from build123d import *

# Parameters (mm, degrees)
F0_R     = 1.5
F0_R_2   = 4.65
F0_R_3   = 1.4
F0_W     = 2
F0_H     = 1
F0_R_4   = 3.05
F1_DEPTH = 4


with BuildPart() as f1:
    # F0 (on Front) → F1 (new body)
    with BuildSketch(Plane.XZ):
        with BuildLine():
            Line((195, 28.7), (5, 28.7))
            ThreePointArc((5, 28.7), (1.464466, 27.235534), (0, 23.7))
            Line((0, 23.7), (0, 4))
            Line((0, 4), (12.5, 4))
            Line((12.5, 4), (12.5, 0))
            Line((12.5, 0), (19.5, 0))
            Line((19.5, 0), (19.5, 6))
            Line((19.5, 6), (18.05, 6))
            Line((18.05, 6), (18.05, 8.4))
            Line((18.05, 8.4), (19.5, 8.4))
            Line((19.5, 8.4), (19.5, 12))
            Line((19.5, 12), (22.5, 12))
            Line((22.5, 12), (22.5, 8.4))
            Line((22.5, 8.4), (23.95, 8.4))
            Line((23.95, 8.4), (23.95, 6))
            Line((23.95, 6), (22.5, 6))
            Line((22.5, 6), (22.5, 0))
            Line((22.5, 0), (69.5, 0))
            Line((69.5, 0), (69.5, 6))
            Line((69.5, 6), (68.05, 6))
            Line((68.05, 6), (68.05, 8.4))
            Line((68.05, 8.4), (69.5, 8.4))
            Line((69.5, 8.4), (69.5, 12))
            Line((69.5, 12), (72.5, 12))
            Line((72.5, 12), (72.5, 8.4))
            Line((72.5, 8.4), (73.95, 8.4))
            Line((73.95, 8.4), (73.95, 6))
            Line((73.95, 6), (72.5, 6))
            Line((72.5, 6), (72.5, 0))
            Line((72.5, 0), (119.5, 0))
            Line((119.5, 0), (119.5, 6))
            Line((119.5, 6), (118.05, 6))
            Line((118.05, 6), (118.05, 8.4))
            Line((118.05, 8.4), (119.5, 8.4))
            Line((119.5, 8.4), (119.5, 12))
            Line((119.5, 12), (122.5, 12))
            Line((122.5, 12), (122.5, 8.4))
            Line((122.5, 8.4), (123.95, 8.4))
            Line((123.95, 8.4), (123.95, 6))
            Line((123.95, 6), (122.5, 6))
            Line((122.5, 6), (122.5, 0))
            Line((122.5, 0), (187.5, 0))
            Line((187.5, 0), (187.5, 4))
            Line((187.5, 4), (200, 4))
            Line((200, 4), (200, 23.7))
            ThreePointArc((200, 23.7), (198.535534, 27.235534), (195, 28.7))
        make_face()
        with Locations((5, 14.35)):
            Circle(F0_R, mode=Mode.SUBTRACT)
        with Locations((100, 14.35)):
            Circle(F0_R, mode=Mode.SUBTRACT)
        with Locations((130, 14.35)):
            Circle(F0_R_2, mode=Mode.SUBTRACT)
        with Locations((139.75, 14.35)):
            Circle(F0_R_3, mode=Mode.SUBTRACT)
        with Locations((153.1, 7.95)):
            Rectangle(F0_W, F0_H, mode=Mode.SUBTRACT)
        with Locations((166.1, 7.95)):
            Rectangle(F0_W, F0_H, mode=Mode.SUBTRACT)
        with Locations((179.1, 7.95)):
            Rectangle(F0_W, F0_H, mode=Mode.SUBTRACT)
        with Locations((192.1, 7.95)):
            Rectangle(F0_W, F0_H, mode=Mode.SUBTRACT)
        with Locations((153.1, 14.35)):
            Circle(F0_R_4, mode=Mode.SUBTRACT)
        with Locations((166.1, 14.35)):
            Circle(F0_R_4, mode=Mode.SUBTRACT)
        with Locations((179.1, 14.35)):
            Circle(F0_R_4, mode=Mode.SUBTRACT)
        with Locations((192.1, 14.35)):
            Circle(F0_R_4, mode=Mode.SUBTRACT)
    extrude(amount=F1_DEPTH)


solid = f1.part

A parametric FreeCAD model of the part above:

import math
import FreeCAD as App
import Part
import Sketcher
from FreeCAD import Vector
Q = App.Units.Quantity

doc = App.newDocument("Part")
body = doc.addObject("PartDesign::Body", "Body")

# Sketch on XZ plane
sketch1 = doc.addObject("Sketcher::SketchObject", "Sketch")
body.addObject(sketch1)
sketch1.AttachmentSupport = (doc.XZ_Plane, [""])
sketch1.MapMode = "FlatFace"
sketch1.addGeometry([
    Part.LineSegment(Vector(195, 28.7, 0), Vector(5, 28.7, 0)),  # 0
    Part.ArcOfCircle(Part.Circle(Vector(5, 23.7, 0), Vector(0, 0, 1), 5), math.radians(89.999996), math.radians(180.000004)),  # 1
    Part.LineSegment(Vector(0, 23.7, 0), Vector(0, 4, 0)),  # 2
    Part.LineSegment(Vector(0, 4, 0), Vector(12.5, 4, 0)),  # 3
    Part.LineSegment(Vector(12.5, 4, 0), Vector(12.5, 0, 0)),  # 4
    Part.LineSegment(Vector(12.5, 0, 0), Vector(19.5, 0, 0)),  # 5
    Part.LineSegment(Vector(19.5, 0, 0), Vector(19.5, 6, 0)),  # 6
    Part.LineSegment(Vector(19.5, 6, 0), Vector(18.05, 6, 0)),  # 7
    Part.LineSegment(Vector(18.05, 6, 0), Vector(18.05, 8.4, 0)),  # 8
    Part.LineSegment(Vector(18.05, 8.4, 0), Vector(19.5, 8.4, 0)),  # 9
    Part.LineSegment(Vector(19.5, 8.4, 0), Vector(19.5, 12, 0)),  # 10
    Part.LineSegment(Vector(19.5, 12, 0), Vector(22.5, 12, 0)),  # 11
    Part.LineSegment(Vector(22.5, 12, 0), Vector(22.5, 8.4, 0)),  # 12
    Part.LineSegment(Vector(22.5, 8.4, 0), Vector(23.95, 8.4, 0)),  # 13
    Part.LineSegment(Vector(23.95, 8.4, 0), Vector(23.95, 6, 0)),  # 14
    Part.LineSegment(Vector(23.95, 6, 0), Vector(22.5, 6, 0)),  # 15
    Part.LineSegment(Vector(22.5, 6, 0), Vector(22.5, 0, 0)),  # 16
    Part.LineSegment(Vector(22.5, 0, 0), Vector(69.5, 0, 0)),  # 17
    Part.LineSegment(Vector(69.5, 0, 0), Vector(69.5, 6, 0)),  # 18
    Part.LineSegment(Vector(69.5, 6, 0), Vector(68.05, 6, 0)),  # 19
    Part.LineSegment(Vector(68.05, 6, 0), Vector(68.05, 8.4, 0)),  # 20
    Part.LineSegment(Vector(68.05, 8.4, 0), Vector(69.5, 8.4, 0)),  # 21
    Part.LineSegment(Vector(69.5, 8.4, 0), Vector(69.5, 12, 0)),  # 22
    Part.LineSegment(Vector(69.5, 12, 0), Vector(72.5, 12, 0)),  # 23
    Part.LineSegment(Vector(72.5, 12, 0), Vector(72.5, 8.4, 0)),  # 24
    Part.LineSegment(Vector(72.5, 8.4, 0), Vector(73.95, 8.4, 0)),  # 25
    Part.LineSegment(Vector(73.95, 8.4, 0), Vector(73.95, 6, 0)),  # 26
    Part.LineSegment(Vector(73.95, 6, 0), Vector(72.5, 6, 0)),  # 27
    Part.LineSegment(Vector(72.5, 6, 0), Vector(72.5, 0, 0)),  # 28
    Part.LineSegment(Vector(72.5, 0, 0), Vector(119.5, 0, 0)),  # 29
    Part.LineSegment(Vector(119.5, 0, 0), Vector(119.5, 6, 0)),  # 30
    Part.LineSegment(Vector(119.5, 6, 0), Vector(118.05, 6, 0)),  # 31
    Part.LineSegment(Vector(118.05, 6, 0), Vector(118.05, 8.4, 0)),  # 32
    Part.LineSegment(Vector(118.05, 8.4, 0), Vector(119.5, 8.4, 0)),  # 33
    Part.LineSegment(Vector(119.5, 8.4, 0), Vector(119.5, 12, 0)),  # 34
    Part.LineSegment(Vector(119.5, 12, 0), Vector(122.5, 12, 0)),  # 35
    Part.LineSegment(Vector(122.5, 12, 0), Vector(122.5, 8.4, 0)),  # 36
    Part.LineSegment(Vector(122.5, 8.4, 0), Vector(123.95, 8.4, 0)),  # 37
    Part.LineSegment(Vector(123.95, 8.4, 0), Vector(123.95, 6, 0)),  # 38
    Part.LineSegment(Vector(123.95, 6, 0), Vector(122.5, 6, 0)),  # 39
    Part.LineSegment(Vector(122.5, 6, 0), Vector(122.5, 0, 0)),  # 40
    Part.LineSegment(Vector(122.5, 0, 0), Vector(187.5, 0, 0)),  # 41
    Part.LineSegment(Vector(187.5, 0, 0), Vector(187.5, 4, 0)),  # 42
    Part.LineSegment(Vector(187.5, 4, 0), Vector(200, 4, 0)),  # 43
    Part.LineSegment(Vector(200, 4, 0), Vector(200, 23.7, 0)),  # 44
    Part.ArcOfCircle(Part.Circle(Vector(195, 23.7, 0), Vector(0, 0, 1), 5), math.radians(-0.000004), math.radians(90.000004)),  # 45
    Part.LineSegment(Vector(154.1, 7.45, 0), Vector(152.1, 7.45, 0)),  # 46
    Part.LineSegment(Vector(152.1, 7.45, 0), Vector(152.1, 8.45, 0)),  # 47
    Part.LineSegment(Vector(152.1, 8.45, 0), Vector(154.1, 8.45, 0)),  # 48
    Part.LineSegment(Vector(154.1, 8.45, 0), Vector(154.1, 7.45, 0)),  # 49
    Part.LineSegment(Vector(167.1, 7.45, 0), Vector(165.1, 7.45, 0)),  # 50
    Part.LineSegment(Vector(165.1, 7.45, 0), Vector(165.1, 8.45, 0)),  # 51
    Part.LineSegment(Vector(165.1, 8.45, 0), Vector(167.1, 8.45, 0)),  # 52
    Part.LineSegment(Vector(167.1, 8.45, 0), Vector(167.1, 7.45, 0)),  # 53
    Part.LineSegment(Vector(180.1, 7.45, 0), Vector(178.1, 7.45, 0)),  # 54
    Part.LineSegment(Vector(178.1, 7.45, 0), Vector(178.1, 8.45, 0)),  # 55
    Part.LineSegment(Vector(178.1, 8.45, 0), Vector(180.1, 8.45, 0)),  # 56
    Part.LineSegment(Vector(180.1, 8.45, 0), Vector(180.1, 7.45, 0)),  # 57
    Part.LineSegment(Vector(193.1, 7.45, 0), Vector(191.1, 7.45, 0)),  # 58
    Part.LineSegment(Vector(191.1, 7.45, 0), Vector(191.1, 8.45, 0)),  # 59
    Part.LineSegment(Vector(191.1, 8.45, 0), Vector(193.1, 8.45, 0)),  # 60
    Part.LineSegment(Vector(193.1, 8.45, 0), Vector(193.1, 7.45, 0)),  # 61
    Part.Circle(Vector(5, 14.35, 0), Vector(0, 0, 1), 1.5),  # 62
    Part.Circle(Vector(100, 14.35, 0), Vector(0, 0, 1), 1.5),  # 63
    Part.Circle(Vector(130, 14.35, 0), Vector(0, 0, 1), 4.65),  # 64
    Part.Circle(Vector(139.75, 14.35, 0), Vector(0, 0, 1), 1.4),  # 65
    Part.Circle(Vector(153.1, 14.35, 0), Vector(0, 0, 1), 3.05),  # 66
    Part.Circle(Vector(166.1, 14.35, 0), Vector(0, 0, 1), 3.05),  # 67
    Part.Circle(Vector(179.1, 14.35, 0), Vector(0, 0, 1), 3.05),  # 68
    Part.Circle(Vector(192.1, 14.35, 0), Vector(0, 0, 1), 3.05),  # 69
], False)
sketch1.addConstraint([
    Sketcher.Constraint("Tangent", 0, 2, 1, 1),
    Sketcher.Constraint("Tangent", 1, 2, 2, 1),
    Sketcher.Constraint("Coincident", 2, 2, 3, 1),
    Sketcher.Constraint("Coincident", 3, 2, 4, 1),
    Sketcher.Constraint("Coincident", 4, 2, 5, 1),
    Sketcher.Constraint("Coincident", 5, 2, 6, 1),
    Sketcher.Constraint("Coincident", 6, 2, 7, 1),
    Sketcher.Constraint("Coincident", 7, 2, 8, 1),
    Sketcher.Constraint("Coincident", 8, 2, 9, 1),
    Sketcher.Constraint("Coincident", 9, 2, 10, 1),
    Sketcher.Constraint("Coincident", 10, 2, 11, 1),
    Sketcher.Constraint("Coincident", 11, 2, 12, 1),
    Sketcher.Constraint("Coincident", 12, 2, 13, 1),
    Sketcher.Constraint("Coincident", 13, 2, 14, 1),
    Sketcher.Constraint("Coincident", 14, 2, 15, 1),
    Sketcher.Constraint("Coincident", 15, 2, 16, 1),
    Sketcher.Constraint("Coincident", 16, 2, 17, 1),
    Sketcher.Constraint("Coincident", 17, 2, 18, 1),
    Sketcher.Constraint("Coincident", 18, 2, 19, 1),
    Sketcher.Constraint("Coincident", 19, 2, 20, 1),
    Sketcher.Constraint("Coincident", 20, 2, 21, 1),
    Sketcher.Constraint("Coincident", 21, 2, 22, 1),
    Sketcher.Constraint("Coincident", 22, 2, 23, 1),
    Sketcher.Constraint("Coincident", 23, 2, 24, 1),
    Sketcher.Constraint("Coincident", 24, 2, 25, 1),
    Sketcher.Constraint("Coincident", 25, 2, 26, 1),
    Sketcher.Constraint("Coincident", 26, 2, 27, 1),
    Sketcher.Constraint("Coincident", 27, 2, 28, 1),
    Sketcher.Constraint("Coincident", 28, 2, 29, 1),
    Sketcher.Constraint("Coincident", 29, 2, 30, 1),
    Sketcher.Constraint("Coincident", 30, 2, 31, 1),
    Sketcher.Constraint("Coincident", 31, 2, 32, 1),
    Sketcher.Constraint("Coincident", 32, 2, 33, 1),
    Sketcher.Constraint("Coincident", 33, 2, 34, 1),
    Sketcher.Constraint("Coincident", 34, 2, 35, 1),
    Sketcher.Constraint("Coincident", 35, 2, 36, 1),
    Sketcher.Constraint("Coincident", 36, 2, 37, 1),
    Sketcher.Constraint("Coincident", 37, 2, 38, 1),
    Sketcher.Constraint("Coincident", 38, 2, 39, 1),
    Sketcher.Constraint("Coincident", 39, 2, 40, 1),
    Sketcher.Constraint("Coincident", 40, 2, 41, 1),
    Sketcher.Constraint("Coincident", 41, 2, 42, 1),
    Sketcher.Constraint("Coincident", 42, 2, 43, 1),
    Sketcher.Constraint("Coincident", 43, 2, 44, 1),
    Sketcher.Constraint("Tangent", 44, 2, 45, 1),
    Sketcher.Constraint("Tangent", 45, 2, 0, 1),
    Sketcher.Constraint("Coincident", 46, 2, 47, 1),
    Sketcher.Constraint("Coincident", 47, 2, 48, 1),
    Sketcher.Constraint("Coincident", 48, 2, 49, 1),
    Sketcher.Constraint("Coincident", 49, 2, 46, 1),
    Sketcher.Constraint("Coincident", 50, 2, 51, 1),
    Sketcher.Constraint("Coincident", 51, 2, 52, 1),
    Sketcher.Constraint("Coincident", 52, 2, 53, 1),
    Sketcher.Constraint("Coincident", 53, 2, 50, 1),
    Sketcher.Constraint("Coincident", 54, 2, 55, 1),
    Sketcher.Constraint("Coincident", 55, 2, 56, 1),
    Sketcher.Constraint("Coincident", 56, 2, 57, 1),
    Sketcher.Constraint("Coincident", 57, 2, 54, 1),
    Sketcher.Constraint("Coincident", 58, 2, 59, 1),
    Sketcher.Constraint("Coincident", 59, 2, 60, 1),
    Sketcher.Constraint("Coincident", 60, 2, 61, 1),
    Sketcher.Constraint("Coincident", 61, 2, 58, 1),
    Sketcher.Constraint("Horizontal", 0),
    Sketcher.Constraint("Vertical", 2),
    Sketcher.Constraint("Horizontal", 3),
    Sketcher.Constraint("Vertical", 4),
    Sketcher.Constraint("Horizontal", 5),
    Sketcher.Constraint("Vertical", 6),
    Sketcher.Constraint("Horizontal", 7),
    Sketcher.Constraint("Vertical", 8),
    Sketcher.Constraint("Horizontal", 9),
    Sketcher.Constraint("Vertical", 10),
    Sketcher.Constraint("Horizontal", 11),
    Sketcher.Constraint("Vertical", 12),
    Sketcher.Constraint("Horizontal", 13),
    Sketcher.Constraint("Vertical", 14),
    Sketcher.Constraint("Horizontal", 15),
    Sketcher.Constraint("Vertical", 16),
    Sketcher.Constraint("Horizontal", 17),
    Sketcher.Constraint("Vertical", 18),
    Sketcher.Constraint("Horizontal", 19),
    Sketcher.Constraint("Vertical", 20),
    Sketcher.Constraint("Horizontal", 21),
    Sketcher.Constraint("Vertical", 22),
    Sketcher.Constraint("Horizontal", 23),
    Sketcher.Constraint("Vertical", 24),
    Sketcher.Constraint("Horizontal", 25),
    Sketcher.Constraint("Vertical", 26),
    Sketcher.Constraint("Horizontal", 27),
    Sketcher.Constraint("Vertical", 28),
    Sketcher.Constraint("Horizontal", 29),
    Sketcher.Constraint("Vertical", 30),
    Sketcher.Constraint("Horizontal", 31),
    Sketcher.Constraint("Vertical", 32),
    Sketcher.Constraint("Horizontal", 33),
    Sketcher.Constraint("Vertical", 34),
    Sketcher.Constraint("Horizontal", 35),
    Sketcher.Constraint("Vertical", 36),
    Sketcher.Constraint("Horizontal", 37),
    Sketcher.Constraint("Vertical", 38),
    Sketcher.Constraint("Horizontal", 39),
    Sketcher.Constraint("Vertical", 40),
    Sketcher.Constraint("Horizontal", 41),
    Sketcher.Constraint("Vertical", 42),
    Sketcher.Constraint("Horizontal", 43),
    Sketcher.Constraint("Vertical", 44),
    Sketcher.Constraint("Horizontal", 46),
    Sketcher.Constraint("Vertical", 47),
    Sketcher.Constraint("Horizontal", 48),
    Sketcher.Constraint("Vertical", 49),
    Sketcher.Constraint("Horizontal", 50),
    Sketcher.Constraint("Vertical", 51),
    Sketcher.Constraint("Horizontal", 52),
    Sketcher.Constraint("Vertical", 53),
    Sketcher.Constraint("Horizontal", 54),
    Sketcher.Constraint("Vertical", 55),
    Sketcher.Constraint("Horizontal", 56),
    Sketcher.Constraint("Vertical", 57),
    Sketcher.Constraint("Horizontal", 58),
    Sketcher.Constraint("Vertical", 59),
    Sketcher.Constraint("Horizontal", 60),
    Sketcher.Constraint("Vertical", 61),
    Sketcher.Constraint("Equal", 1, 45),
    Sketcher.Constraint("Equal", 62, 63),
    Sketcher.Constraint("Equal", 66, 67),
    Sketcher.Constraint("Equal", 67, 68),
    Sketcher.Constraint("Equal", 68, 69),
    Sketcher.Constraint("PointOnObject", 1, 2, -2),
    Sketcher.Constraint("PointOnObject", 4, 2, -1),
    Sketcher.Constraint("PointOnObject", 16, 2, -1),
    Sketcher.Constraint("PointOnObject", 28, 2, -1),
    Sketcher.Constraint("PointOnObject", 40, 2, -1),
    Sketcher.Constraint("Horizontal", 62, 3, 63, 3),
    Sketcher.Constraint("Horizontal", 63, 3, 64, 3),
    Sketcher.Constraint("Horizontal", 64, 3, 65, 3),
    Sketcher.Constraint("Horizontal", 65, 3, 66, 3),
    Sketcher.Constraint("Horizontal", 66, 3, 67, 3),
    Sketcher.Constraint("Horizontal", 67, 3, 68, 3),
    Sketcher.Constraint("Horizontal", 68, 3, 69, 3),
    Sketcher.Constraint("Horizontal", 9, 2, 12, 2),
    Sketcher.Constraint("Horizontal", 7, 2, 14, 2),
    Sketcher.Constraint("Horizontal", 15, 2, 18, 2),
    Sketcher.Constraint("Horizontal", 13, 2, 20, 2),
    Sketcher.Constraint("Horizontal", 11, 2, 22, 2),
    Sketcher.Constraint("Horizontal", 21, 2, 24, 2),
    Sketcher.Constraint("Horizontal", 19, 2, 26, 2),
    Sketcher.Constraint("Horizontal", 27, 2, 30, 2),
    Sketcher.Constraint("Horizontal", 25, 2, 32, 2),
    Sketcher.Constraint("Horizontal", 23, 2, 34, 2),
    Sketcher.Constraint("Horizontal", 33, 2, 36, 2),
    Sketcher.Constraint("Horizontal", 31, 2, 38, 2),
    Sketcher.Constraint("Horizontal", 3, 2, 42, 2),
    Sketcher.Constraint("Horizontal", 49, 2, 50, 2),
    Sketcher.Constraint("Horizontal", 48, 2, 51, 2),
    Sketcher.Constraint("Horizontal", 53, 2, 54, 2),
    Sketcher.Constraint("Horizontal", 52, 2, 55, 2),
    Sketcher.Constraint("Horizontal", 57, 2, 58, 2),
    Sketcher.Constraint("Horizontal", 56, 2, 59, 2),
    Sketcher.Constraint("Vertical", 1, 3, 62, 3),
    Sketcher.Constraint("Vertical", 6, 2, 9, 2),
    Sketcher.Constraint("Vertical", 12, 2, 15, 2),
    Sketcher.Constraint("Vertical", 18, 2, 21, 2),
    Sketcher.Constraint("Vertical", 24, 2, 27, 2),
    Sketcher.Constraint("Vertical", 30, 2, 33, 2),
    Sketcher.Constraint("Vertical", 36, 2, 39, 2),
    Sketcher.Constraint("Equal", 9, 13),
    Sketcher.Constraint("Equal", 15, 19),
    Sketcher.Constraint("Equal", 11, 23),
    Sketcher.Constraint("Equal", 21, 25),
    Sketcher.Constraint("Equal", 17, 29),
    Sketcher.Constraint("Equal", 27, 31),
    Sketcher.Constraint("Equal", 23, 35),
    Sketcher.Constraint("Equal", 33, 37),
    Sketcher.Constraint("Equal", 3, 43),
    Sketcher.Constraint("Equal", 48, 50),
    Sketcher.Constraint("Equal", 52, 54),
    Sketcher.Constraint("Equal", 56, 58),
    Sketcher.Constraint("Diameter", 62, Q("3 mm")),
    Sketcher.Constraint("Radius", 1, Q("5 mm")),
    Sketcher.Constraint("Diameter", 64, Q("9.3 mm")),
    Sketcher.Constraint("Diameter", 65, Q("2.8 mm")),
    Sketcher.Constraint("Diameter", 66, Q("6.1 mm")),
    Sketcher.Constraint("DistanceX", 0, 2, 0, 1, Q("190 mm")),
    Sketcher.Constraint("DistanceX", 5, 1, 5, 2, Q("7 mm")),
    Sketcher.Constraint("DistanceX", 11, 1, 11, 2, Q("3 mm")),
    Sketcher.Constraint("DistanceX", 17, 1, 17, 2, Q("47 mm")),
    Sketcher.Constraint("DistanceX", 41, 1, 41, 2, Q("65 mm")),
    Sketcher.Constraint("DistanceX", 46, 2, 46, 1, Q("2 mm")),
    Sketcher.Constraint("DistanceY", 4, 2, 4, 1, Q("4 mm")),
    Sketcher.Constraint("DistanceY", 6, 1, 6, 2, Q("6 mm")),
    Sketcher.Constraint("DistanceY", 47, 1, 47, 2, Q("1 mm")),
    Sketcher.Constraint("DistanceY", 2, 2, 2, 1, Q("19.7 mm")),
    Sketcher.Constraint("DistanceY", 8, 1, 8, 2, Q("2.4 mm")),
    Sketcher.Constraint("DistanceY", 10, 1, 10, 2, Q("3.6 mm")),
    Sketcher.Constraint("DistanceX", -1, 1, 63, 3, Q("100 mm")),
    Sketcher.Constraint("DistanceX", -1, 1, 64, 3, Q("130 mm")),
    Sketcher.Constraint("DistanceX", 7, 2, 7, 1, Q("1.45 mm")),
    Sketcher.Constraint("DistanceX", -1, 1, 66, 3, Q("153.1 mm")),
    Sketcher.Constraint("DistanceX", -1, 1, 67, 3, Q("166.1 mm")),
    Sketcher.Constraint("DistanceX", -1, 1, 68, 3, Q("179.1 mm")),
    Sketcher.Constraint("DistanceX", -1, 1, 69, 3, Q("192.1 mm")),
    Sketcher.Constraint("DistanceX", -1, 1, 46, 2, Q("152.1 mm")),
    Sketcher.Constraint("DistanceX", -1, 1, 50, 2, Q("165.1 mm")),
    Sketcher.Constraint("DistanceX", -1, 1, 54, 2, Q("178.1 mm")),
    Sketcher.Constraint("DistanceX", -1, 1, 58, 2, Q("191.1 mm")),
    Sketcher.Constraint("DistanceY", -1, 1, 62, 3, Q("14.35 mm")),
    Sketcher.Constraint("DistanceX", -1, 1, 65, 3, Q("139.75 mm")),
    Sketcher.Constraint("DistanceY", -1, 1, 46, 2, Q("7.45 mm")),
])
pad1 = doc.addObject("PartDesign::Pad", "Pad")
body.addObject(pad1)
pad1.Profile = sketch1
pad1.Length = 4

doc.recompute()
